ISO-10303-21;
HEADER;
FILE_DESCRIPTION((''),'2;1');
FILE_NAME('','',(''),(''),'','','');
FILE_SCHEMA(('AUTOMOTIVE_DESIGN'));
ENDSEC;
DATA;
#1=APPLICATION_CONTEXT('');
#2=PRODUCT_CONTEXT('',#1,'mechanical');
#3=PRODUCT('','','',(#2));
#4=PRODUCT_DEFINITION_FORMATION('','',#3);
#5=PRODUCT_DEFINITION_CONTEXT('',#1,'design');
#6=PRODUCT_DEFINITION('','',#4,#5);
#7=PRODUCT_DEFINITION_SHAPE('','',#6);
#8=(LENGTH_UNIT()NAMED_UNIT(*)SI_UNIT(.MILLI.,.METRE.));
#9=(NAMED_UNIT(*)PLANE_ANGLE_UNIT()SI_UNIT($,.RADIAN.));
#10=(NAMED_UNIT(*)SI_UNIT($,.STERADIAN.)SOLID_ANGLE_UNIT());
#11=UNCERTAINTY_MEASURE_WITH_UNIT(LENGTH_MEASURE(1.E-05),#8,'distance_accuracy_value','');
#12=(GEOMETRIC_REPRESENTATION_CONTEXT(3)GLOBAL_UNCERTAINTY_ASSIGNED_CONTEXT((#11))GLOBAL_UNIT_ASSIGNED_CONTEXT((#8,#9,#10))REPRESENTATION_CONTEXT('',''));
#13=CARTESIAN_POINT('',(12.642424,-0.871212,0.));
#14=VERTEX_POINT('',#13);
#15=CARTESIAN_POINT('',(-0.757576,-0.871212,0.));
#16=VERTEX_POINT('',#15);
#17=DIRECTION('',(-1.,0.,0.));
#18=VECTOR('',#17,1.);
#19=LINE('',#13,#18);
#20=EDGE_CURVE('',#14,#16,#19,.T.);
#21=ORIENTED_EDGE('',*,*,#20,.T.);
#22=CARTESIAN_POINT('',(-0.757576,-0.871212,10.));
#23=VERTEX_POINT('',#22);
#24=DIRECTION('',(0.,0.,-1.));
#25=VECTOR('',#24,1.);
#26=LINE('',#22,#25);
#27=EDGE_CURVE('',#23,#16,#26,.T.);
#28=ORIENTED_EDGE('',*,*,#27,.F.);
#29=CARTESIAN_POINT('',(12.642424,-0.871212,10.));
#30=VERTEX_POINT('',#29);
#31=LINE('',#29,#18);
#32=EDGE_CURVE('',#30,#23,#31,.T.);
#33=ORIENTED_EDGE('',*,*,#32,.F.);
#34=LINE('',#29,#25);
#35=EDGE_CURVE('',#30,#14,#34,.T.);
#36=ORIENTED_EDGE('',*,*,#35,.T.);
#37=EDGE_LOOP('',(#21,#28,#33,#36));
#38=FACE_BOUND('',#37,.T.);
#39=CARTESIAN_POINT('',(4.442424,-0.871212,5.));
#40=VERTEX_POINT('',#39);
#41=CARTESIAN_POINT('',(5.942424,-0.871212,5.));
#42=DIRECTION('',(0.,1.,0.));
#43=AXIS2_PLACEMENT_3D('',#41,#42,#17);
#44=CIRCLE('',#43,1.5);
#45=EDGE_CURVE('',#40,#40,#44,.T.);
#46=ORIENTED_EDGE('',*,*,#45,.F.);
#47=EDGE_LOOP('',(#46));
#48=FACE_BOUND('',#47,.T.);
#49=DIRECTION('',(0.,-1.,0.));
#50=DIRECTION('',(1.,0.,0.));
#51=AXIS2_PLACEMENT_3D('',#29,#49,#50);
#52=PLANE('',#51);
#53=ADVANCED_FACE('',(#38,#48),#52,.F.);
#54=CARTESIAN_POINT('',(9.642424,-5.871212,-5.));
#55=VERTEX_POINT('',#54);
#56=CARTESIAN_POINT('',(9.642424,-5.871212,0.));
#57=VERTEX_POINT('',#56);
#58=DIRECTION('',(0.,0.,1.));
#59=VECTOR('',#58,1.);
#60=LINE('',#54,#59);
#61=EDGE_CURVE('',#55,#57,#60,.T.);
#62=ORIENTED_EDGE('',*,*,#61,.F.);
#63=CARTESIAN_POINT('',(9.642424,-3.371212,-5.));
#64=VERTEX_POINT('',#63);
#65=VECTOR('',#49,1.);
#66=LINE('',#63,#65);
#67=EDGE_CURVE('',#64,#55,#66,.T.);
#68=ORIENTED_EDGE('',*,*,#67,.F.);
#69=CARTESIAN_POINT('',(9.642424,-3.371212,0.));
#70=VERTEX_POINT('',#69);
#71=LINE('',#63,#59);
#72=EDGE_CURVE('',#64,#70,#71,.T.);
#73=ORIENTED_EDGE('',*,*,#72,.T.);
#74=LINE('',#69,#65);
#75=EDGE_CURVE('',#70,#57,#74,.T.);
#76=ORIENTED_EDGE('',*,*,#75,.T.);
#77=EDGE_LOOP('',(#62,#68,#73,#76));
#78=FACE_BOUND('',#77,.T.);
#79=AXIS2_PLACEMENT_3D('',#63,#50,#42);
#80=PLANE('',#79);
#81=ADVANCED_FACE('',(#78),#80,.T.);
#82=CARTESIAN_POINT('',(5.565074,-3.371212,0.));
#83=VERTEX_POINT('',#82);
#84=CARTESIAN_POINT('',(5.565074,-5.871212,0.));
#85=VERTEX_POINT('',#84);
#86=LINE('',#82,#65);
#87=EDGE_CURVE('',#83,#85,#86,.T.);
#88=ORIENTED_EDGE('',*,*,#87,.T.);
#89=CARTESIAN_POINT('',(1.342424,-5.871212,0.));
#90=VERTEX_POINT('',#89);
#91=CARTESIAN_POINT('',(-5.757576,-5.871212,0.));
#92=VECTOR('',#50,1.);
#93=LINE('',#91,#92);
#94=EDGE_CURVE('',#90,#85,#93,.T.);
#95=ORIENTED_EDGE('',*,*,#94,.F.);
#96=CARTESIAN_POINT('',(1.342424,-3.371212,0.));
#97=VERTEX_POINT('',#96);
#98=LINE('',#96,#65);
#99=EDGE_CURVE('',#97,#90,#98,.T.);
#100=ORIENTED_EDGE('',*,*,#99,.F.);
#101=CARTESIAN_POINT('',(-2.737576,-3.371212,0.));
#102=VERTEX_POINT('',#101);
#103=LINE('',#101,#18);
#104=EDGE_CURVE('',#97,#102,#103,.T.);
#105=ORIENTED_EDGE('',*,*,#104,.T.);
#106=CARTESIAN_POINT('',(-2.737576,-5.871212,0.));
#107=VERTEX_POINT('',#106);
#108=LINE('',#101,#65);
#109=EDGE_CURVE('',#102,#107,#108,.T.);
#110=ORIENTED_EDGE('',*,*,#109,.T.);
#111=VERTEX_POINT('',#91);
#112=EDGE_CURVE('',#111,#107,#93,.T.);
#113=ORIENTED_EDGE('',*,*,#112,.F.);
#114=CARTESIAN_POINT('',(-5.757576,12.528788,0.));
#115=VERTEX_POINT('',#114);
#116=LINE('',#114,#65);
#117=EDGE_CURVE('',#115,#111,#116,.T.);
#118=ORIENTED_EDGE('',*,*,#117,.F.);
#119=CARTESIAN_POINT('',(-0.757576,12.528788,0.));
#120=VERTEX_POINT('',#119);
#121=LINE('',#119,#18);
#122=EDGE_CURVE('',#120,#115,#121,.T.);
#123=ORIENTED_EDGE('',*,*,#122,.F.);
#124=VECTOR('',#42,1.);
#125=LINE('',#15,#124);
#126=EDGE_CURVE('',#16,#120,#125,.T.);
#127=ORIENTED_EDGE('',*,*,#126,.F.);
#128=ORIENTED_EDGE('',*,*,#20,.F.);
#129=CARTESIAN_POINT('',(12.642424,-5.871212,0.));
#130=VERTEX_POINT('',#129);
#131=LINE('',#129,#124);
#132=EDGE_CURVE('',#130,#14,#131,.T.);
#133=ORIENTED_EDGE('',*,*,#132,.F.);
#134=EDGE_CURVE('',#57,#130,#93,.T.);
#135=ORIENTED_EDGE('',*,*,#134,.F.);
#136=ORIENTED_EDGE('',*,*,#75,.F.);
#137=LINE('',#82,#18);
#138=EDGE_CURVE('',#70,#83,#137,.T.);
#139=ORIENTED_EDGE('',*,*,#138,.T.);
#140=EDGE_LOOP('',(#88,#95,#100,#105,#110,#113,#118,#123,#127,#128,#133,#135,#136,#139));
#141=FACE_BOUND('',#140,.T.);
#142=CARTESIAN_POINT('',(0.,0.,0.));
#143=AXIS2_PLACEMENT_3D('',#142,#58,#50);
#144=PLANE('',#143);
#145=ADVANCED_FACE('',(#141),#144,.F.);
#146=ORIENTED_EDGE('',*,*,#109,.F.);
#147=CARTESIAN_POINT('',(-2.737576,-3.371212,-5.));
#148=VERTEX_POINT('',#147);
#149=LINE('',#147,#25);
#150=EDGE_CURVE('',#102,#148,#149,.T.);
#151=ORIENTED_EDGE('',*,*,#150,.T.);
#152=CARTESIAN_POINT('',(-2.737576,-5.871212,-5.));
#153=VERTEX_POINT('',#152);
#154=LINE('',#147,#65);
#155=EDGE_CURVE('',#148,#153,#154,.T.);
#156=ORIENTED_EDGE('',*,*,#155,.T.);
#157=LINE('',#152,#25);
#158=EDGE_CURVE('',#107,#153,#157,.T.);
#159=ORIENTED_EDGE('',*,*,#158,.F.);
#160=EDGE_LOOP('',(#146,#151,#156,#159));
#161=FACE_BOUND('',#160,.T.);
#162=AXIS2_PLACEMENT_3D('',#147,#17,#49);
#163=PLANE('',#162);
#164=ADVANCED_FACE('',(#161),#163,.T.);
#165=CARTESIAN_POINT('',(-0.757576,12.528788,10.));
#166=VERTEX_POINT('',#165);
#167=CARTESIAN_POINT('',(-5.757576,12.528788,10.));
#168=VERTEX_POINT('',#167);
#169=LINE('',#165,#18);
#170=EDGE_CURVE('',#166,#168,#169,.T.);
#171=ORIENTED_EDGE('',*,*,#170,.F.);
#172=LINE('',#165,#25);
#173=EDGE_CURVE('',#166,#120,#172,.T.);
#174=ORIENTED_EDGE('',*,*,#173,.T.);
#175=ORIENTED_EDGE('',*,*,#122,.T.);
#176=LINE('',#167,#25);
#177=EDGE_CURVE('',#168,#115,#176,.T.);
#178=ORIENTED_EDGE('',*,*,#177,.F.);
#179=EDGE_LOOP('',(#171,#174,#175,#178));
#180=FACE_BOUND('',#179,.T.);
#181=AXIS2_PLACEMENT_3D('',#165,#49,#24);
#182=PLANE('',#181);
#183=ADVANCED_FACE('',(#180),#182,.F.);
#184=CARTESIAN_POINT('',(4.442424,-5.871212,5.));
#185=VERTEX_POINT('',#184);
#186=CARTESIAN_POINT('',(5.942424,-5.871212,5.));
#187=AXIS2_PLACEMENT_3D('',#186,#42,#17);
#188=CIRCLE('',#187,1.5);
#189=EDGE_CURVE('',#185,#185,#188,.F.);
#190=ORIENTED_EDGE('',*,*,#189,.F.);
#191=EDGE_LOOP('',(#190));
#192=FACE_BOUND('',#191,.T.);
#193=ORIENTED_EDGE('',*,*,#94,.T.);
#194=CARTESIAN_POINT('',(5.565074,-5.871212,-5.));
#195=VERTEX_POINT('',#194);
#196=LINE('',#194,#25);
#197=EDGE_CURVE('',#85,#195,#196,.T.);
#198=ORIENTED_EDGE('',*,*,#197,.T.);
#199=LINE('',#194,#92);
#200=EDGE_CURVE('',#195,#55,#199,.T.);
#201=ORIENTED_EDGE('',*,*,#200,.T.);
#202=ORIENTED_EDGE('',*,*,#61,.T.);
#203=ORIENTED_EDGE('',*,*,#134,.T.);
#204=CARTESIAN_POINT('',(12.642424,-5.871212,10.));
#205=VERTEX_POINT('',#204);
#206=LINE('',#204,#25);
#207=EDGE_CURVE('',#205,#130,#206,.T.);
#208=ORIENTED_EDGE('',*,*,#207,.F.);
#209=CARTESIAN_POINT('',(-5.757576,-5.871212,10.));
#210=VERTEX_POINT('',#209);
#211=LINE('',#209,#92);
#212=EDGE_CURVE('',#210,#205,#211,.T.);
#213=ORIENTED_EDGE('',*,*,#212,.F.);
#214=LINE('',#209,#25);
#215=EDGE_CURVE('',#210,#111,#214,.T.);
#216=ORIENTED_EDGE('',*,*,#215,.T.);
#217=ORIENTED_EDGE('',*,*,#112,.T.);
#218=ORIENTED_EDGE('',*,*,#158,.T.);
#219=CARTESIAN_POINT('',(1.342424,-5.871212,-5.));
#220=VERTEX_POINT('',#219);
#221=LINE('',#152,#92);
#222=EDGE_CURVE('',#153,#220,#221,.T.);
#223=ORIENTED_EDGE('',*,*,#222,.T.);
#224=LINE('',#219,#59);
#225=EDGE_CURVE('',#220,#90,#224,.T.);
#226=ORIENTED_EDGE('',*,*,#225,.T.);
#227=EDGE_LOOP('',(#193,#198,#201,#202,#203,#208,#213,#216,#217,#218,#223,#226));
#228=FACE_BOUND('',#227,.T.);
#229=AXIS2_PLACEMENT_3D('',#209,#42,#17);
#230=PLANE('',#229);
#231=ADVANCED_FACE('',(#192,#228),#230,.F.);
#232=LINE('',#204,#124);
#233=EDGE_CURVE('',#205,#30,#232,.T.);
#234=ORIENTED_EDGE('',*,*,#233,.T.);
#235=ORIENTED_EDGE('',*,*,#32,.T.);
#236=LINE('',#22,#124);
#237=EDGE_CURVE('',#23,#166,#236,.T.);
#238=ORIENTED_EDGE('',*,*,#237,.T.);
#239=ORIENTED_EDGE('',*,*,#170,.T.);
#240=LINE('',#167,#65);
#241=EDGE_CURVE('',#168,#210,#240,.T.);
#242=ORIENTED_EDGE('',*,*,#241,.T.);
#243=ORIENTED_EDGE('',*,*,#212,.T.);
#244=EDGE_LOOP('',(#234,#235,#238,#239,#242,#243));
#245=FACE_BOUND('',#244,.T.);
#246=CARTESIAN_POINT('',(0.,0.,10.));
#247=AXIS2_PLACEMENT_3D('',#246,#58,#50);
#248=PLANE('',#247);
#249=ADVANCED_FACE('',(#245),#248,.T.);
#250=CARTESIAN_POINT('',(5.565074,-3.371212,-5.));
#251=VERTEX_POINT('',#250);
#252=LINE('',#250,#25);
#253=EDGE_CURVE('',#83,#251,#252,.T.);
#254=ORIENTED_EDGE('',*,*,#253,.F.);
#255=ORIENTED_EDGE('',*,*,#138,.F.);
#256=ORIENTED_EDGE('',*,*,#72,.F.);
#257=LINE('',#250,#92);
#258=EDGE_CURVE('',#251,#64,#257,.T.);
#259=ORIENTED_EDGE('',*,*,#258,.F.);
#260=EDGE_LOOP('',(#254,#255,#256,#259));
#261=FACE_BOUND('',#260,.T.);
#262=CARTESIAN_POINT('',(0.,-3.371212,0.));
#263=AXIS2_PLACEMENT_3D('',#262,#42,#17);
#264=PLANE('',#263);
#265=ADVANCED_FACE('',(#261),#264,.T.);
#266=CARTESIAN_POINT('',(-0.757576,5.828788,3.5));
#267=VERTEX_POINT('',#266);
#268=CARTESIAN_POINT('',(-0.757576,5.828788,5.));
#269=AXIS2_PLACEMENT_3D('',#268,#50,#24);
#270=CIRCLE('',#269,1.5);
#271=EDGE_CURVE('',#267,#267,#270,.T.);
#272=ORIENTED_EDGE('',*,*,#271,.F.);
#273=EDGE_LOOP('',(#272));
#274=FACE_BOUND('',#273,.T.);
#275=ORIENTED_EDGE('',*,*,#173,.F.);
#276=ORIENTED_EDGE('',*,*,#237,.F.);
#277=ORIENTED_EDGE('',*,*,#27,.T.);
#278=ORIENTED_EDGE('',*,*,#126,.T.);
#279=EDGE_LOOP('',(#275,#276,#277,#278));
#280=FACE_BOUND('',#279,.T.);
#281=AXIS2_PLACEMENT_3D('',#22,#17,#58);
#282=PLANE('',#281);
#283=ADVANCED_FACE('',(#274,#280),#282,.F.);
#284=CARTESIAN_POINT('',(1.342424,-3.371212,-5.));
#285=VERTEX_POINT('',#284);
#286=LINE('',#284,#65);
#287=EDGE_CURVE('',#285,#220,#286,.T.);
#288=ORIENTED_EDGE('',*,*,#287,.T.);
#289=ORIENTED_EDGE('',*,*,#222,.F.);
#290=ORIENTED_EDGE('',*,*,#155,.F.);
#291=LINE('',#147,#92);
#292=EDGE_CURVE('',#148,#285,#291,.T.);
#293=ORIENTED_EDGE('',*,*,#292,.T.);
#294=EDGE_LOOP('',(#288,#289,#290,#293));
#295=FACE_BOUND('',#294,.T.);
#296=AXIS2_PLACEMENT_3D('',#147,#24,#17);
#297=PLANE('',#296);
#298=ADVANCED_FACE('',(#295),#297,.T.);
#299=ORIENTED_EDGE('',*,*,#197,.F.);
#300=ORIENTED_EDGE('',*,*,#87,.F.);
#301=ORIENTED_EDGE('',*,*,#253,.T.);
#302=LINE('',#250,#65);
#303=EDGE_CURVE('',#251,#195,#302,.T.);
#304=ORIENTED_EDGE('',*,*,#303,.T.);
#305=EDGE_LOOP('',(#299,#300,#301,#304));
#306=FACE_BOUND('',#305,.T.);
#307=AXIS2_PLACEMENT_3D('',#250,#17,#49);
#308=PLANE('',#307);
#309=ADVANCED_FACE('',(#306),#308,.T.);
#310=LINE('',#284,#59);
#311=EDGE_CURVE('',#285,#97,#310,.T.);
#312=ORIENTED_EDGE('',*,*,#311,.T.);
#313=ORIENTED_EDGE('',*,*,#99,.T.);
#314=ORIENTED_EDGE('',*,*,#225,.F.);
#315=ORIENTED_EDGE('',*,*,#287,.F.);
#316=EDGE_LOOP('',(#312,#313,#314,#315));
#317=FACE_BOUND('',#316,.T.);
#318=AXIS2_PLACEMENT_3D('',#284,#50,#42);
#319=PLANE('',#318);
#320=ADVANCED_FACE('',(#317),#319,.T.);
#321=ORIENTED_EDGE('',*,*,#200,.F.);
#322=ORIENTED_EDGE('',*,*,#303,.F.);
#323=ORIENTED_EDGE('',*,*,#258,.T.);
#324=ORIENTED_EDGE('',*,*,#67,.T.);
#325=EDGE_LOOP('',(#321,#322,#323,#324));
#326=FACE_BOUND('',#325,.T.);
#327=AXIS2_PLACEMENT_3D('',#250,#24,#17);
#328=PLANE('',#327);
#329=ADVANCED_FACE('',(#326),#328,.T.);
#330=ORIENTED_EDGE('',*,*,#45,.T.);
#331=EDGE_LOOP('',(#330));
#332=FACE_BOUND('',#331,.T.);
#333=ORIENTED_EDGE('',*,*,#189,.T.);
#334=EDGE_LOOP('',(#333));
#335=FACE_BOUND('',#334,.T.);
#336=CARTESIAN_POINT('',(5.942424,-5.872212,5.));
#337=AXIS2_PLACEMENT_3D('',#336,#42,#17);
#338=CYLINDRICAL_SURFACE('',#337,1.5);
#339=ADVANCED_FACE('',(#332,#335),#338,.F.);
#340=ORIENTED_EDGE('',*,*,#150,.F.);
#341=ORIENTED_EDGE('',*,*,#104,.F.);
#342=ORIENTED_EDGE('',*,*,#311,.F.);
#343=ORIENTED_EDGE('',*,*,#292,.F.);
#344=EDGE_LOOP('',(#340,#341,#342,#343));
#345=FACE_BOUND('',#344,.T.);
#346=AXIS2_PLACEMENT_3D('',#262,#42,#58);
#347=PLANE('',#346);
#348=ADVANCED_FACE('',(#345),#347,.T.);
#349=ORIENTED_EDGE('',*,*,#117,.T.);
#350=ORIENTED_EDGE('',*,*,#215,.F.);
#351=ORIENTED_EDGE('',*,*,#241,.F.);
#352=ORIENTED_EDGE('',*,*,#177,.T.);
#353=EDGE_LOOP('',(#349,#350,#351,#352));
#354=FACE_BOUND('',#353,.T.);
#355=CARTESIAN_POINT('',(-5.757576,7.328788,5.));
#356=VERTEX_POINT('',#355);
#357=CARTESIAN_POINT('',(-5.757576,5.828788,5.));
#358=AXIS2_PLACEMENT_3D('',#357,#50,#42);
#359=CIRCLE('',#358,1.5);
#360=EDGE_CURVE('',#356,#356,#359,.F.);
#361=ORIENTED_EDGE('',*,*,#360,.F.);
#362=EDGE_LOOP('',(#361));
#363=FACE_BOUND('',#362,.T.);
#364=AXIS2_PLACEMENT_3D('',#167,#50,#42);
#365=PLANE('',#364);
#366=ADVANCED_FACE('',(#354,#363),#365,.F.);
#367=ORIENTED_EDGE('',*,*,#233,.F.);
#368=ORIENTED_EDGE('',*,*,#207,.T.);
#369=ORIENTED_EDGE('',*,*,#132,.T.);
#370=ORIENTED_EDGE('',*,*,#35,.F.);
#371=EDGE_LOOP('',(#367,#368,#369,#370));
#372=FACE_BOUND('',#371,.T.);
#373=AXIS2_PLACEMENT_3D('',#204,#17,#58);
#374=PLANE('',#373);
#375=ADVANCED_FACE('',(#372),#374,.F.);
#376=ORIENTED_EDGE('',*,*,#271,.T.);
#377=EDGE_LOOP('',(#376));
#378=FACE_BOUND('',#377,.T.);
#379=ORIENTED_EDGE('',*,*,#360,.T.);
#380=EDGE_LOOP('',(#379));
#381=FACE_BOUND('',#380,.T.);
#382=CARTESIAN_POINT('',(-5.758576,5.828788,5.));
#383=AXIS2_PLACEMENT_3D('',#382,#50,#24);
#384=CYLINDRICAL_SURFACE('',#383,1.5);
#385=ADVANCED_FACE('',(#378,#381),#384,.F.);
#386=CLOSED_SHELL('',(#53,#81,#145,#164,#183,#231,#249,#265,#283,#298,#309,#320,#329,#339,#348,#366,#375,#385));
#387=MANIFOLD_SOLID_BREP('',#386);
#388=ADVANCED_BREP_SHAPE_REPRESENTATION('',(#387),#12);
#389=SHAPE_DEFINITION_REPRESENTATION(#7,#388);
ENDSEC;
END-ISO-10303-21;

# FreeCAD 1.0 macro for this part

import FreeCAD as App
import Part
import Sketcher


def add_polygon(sketch, points):
    """Adds a closed chain of lines whose ends are joined by coincident constraints."""
    first, n = sketch.GeometryCount, len(points)
    for a, b in zip(points, points[1:] + points[:1]):
        sketch.addGeometry(Part.LineSegment(App.Vector(*a, 0), App.Vector(*b, 0)), False)
    for i in range(n):
        sketch.addConstraint(Sketcher.Constraint("Coincident", first + i, 2, first + (i + 1) % n, 1))

doc = App.newDocument("Part")
body = doc.addObject("PartDesign::Body", "Body")

# Sketch on XY plane
sketch1 = body.newObject("Sketcher::SketchObject", "Sketch")
sketch1.AttachmentSupport = (doc.getObject("XY_Plane"), [""])
sketch1.MapMode = "FlatFace"
add_polygon(sketch1, [(-1, 13), (-6, 13), (-6, -6), (13, -6), (13, -1), (-1, -1)])  # lines 0-5
sketch1.addConstraint(Sketcher.Constraint("Horizontal", 0))
sketch1.addConstraint(Sketcher.Constraint("Vertical", 1))
sketch1.addConstraint(Sketcher.Constraint("Horizontal", 2))
sketch1.addConstraint(Sketcher.Constraint("Vertical", 3))
sketch1.addConstraint(Sketcher.Constraint("Horizontal", 4))
sketch1.addConstraint(Sketcher.Constraint("Vertical", 5))
sketch1.addConstraint(Sketcher.Constraint("Equal", 2, 1))
sketch1.addConstraint(Sketcher.Constraint("Equal", 0, 3))
sketch1.addConstraint(Sketcher.Constraint("DistanceX", 0, 2, 0, 1, 5.0))
sketch1.addConstraint(Sketcher.Constraint("DistanceX", 2, 1, 2, 2, 18.4))
sketch1.addConstraint(Sketcher.Constraint("DistanceX", 0, 2, -1, 1, 5.757576))
sketch1.addConstraint(Sketcher.Constraint("DistanceY", -1, 1, 0, 2, 12.528788))
pad1 = body.newObject("PartDesign::Pad", "Pad")
pad1.Profile = sketch1
pad1.Length = 10

# Sketch on XZ plane
sketch2 = body.newObject("Sketcher::SketchObject", "Sketch001")
sketch2.AttachmentSupport = (doc.getObject("XZ_Plane"), [""])
sketch2.MapMode = "FlatFace"
sketch2.AttachmentOffset = App.Placement(App.Vector(0, 0, 0.871212), App.Rotation())
sketch2.addGeometry(Part.Circle(App.Vector(5.9, 5, 0), App.Vector(0, 0, 1), 1.5), False)
sketch2.addConstraint(Sketcher.Constraint("Diameter", 0, 3.0))
sketch2.addConstraint(Sketcher.Constraint("DistanceY", -1, 1, 0, 3, 5.0))
sketch2.addConstraint(Sketcher.Constraint("DistanceX", -1, 1, 0, 3, 5.942424))
pocket1 = body.newObject("PartDesign::Pocket", "Pocket")
pocket1.Profile = sketch2
pocket1.Type = "UpToFirst"
pocket1.Reversed = True

# Sketch on YZ plane
sketch3 = body.newObject("Sketcher::SketchObject", "Sketch002")
sketch3.AttachmentSupport = (doc.getObject("YZ_Plane"), [""])
sketch3.MapMode = "FlatFace"
sketch3.AttachmentOffset = App.Placement(App.Vector(0, 0, -0.757576), App.Rotation())
sketch3.addGeometry(Part.Circle(App.Vector(5.8, 5, 0), App.Vector(0, 0, 1), 1.5), False)
sketch3.addConstraint(Sketcher.Constraint("Diameter", 0, 3.0))
sketch3.addConstraint(Sketcher.Constraint("DistanceY", -1, 1, 0, 3, 5.0))
sketch3.addConstraint(Sketcher.Constraint("DistanceX", -1, 1, 0, 3, 5.828788))
pocket2 = body.newObject("PartDesign::Pocket", "Pocket001")
pocket2.Profile = sketch3
pocket2.Type = "UpToFirst"

# Sketch on XZ plane
sketch4 = body.newObject("Sketcher::SketchObject", "Sketch003")
sketch4.AttachmentSupport = (doc.getObject("XZ_Plane"), [""])
sketch4.MapMode = "FlatFace"
sketch4.AttachmentOffset = App.Placement(App.Vector(0, 0, 5.871212), App.Rotation())
add_polygon(sketch4, [(5.6, 0), (5.6, -5), (9.6, -5), (9.6, 0)])  # lines 0-3
add_polygon(sketch4, [(-2.7, 0), (-2.7, -5), (1.3, -5), (1.3, 0)])  # lines 4-7
sketch4.addConstraint(Sketcher.Constraint("Vertical", 0))
sketch4.addConstraint(Sketcher.Constraint("Horizontal", 1))
sketch4.addConstraint(Sketcher.Constraint("Vertical", 2))
sketch4.addConstraint(Sketcher.Constraint("Horizontal", 3))
sketch4.addConstraint(Sketcher.Constraint("Vertical", 4))
sketch4.addConstraint(Sketcher.Constraint("Horizontal", 5))
sketch4.addConstraint(Sketcher.Constraint("Vertical", 6))
sketch4.addConstraint(Sketcher.Constraint("Horizontal", 7))
sketch4.addConstraint(Sketcher.Constraint("PointOnObject", 2, 2, -1))
sketch4.addConstraint(Sketcher.Constraint("PointOnObject", 6, 2, -1))
sketch4.addConstraint(Sketcher.Constraint("Horizontal", 1, 2, 4, 2))
sketch4.addConstraint(Sketcher.Constraint("DistanceY", 0, 2, 0, 1, 5.0))
sketch4.addConstraint(Sketcher.Constraint("DistanceX", 5, 1, 5, 2, 4.08))
sketch4.addConstraint(Sketcher.Constraint("DistanceX", 5, 2, 1, 2, 8.3))
sketch4.addConstraint(Sketcher.Constraint("DistanceX", 1, 1, 1, 2, 4.07735))
sketch4.addConstraint(Sketcher.Constraint("DistanceX", -1, 1, 0, 2, 5.565074))
pad2 = body.newObject("PartDesign::Pad", "Pad001")
pad2.Profile = sketch4
pad2.Length = 2.5
pad2.Reversed = True

doc.recompute()
